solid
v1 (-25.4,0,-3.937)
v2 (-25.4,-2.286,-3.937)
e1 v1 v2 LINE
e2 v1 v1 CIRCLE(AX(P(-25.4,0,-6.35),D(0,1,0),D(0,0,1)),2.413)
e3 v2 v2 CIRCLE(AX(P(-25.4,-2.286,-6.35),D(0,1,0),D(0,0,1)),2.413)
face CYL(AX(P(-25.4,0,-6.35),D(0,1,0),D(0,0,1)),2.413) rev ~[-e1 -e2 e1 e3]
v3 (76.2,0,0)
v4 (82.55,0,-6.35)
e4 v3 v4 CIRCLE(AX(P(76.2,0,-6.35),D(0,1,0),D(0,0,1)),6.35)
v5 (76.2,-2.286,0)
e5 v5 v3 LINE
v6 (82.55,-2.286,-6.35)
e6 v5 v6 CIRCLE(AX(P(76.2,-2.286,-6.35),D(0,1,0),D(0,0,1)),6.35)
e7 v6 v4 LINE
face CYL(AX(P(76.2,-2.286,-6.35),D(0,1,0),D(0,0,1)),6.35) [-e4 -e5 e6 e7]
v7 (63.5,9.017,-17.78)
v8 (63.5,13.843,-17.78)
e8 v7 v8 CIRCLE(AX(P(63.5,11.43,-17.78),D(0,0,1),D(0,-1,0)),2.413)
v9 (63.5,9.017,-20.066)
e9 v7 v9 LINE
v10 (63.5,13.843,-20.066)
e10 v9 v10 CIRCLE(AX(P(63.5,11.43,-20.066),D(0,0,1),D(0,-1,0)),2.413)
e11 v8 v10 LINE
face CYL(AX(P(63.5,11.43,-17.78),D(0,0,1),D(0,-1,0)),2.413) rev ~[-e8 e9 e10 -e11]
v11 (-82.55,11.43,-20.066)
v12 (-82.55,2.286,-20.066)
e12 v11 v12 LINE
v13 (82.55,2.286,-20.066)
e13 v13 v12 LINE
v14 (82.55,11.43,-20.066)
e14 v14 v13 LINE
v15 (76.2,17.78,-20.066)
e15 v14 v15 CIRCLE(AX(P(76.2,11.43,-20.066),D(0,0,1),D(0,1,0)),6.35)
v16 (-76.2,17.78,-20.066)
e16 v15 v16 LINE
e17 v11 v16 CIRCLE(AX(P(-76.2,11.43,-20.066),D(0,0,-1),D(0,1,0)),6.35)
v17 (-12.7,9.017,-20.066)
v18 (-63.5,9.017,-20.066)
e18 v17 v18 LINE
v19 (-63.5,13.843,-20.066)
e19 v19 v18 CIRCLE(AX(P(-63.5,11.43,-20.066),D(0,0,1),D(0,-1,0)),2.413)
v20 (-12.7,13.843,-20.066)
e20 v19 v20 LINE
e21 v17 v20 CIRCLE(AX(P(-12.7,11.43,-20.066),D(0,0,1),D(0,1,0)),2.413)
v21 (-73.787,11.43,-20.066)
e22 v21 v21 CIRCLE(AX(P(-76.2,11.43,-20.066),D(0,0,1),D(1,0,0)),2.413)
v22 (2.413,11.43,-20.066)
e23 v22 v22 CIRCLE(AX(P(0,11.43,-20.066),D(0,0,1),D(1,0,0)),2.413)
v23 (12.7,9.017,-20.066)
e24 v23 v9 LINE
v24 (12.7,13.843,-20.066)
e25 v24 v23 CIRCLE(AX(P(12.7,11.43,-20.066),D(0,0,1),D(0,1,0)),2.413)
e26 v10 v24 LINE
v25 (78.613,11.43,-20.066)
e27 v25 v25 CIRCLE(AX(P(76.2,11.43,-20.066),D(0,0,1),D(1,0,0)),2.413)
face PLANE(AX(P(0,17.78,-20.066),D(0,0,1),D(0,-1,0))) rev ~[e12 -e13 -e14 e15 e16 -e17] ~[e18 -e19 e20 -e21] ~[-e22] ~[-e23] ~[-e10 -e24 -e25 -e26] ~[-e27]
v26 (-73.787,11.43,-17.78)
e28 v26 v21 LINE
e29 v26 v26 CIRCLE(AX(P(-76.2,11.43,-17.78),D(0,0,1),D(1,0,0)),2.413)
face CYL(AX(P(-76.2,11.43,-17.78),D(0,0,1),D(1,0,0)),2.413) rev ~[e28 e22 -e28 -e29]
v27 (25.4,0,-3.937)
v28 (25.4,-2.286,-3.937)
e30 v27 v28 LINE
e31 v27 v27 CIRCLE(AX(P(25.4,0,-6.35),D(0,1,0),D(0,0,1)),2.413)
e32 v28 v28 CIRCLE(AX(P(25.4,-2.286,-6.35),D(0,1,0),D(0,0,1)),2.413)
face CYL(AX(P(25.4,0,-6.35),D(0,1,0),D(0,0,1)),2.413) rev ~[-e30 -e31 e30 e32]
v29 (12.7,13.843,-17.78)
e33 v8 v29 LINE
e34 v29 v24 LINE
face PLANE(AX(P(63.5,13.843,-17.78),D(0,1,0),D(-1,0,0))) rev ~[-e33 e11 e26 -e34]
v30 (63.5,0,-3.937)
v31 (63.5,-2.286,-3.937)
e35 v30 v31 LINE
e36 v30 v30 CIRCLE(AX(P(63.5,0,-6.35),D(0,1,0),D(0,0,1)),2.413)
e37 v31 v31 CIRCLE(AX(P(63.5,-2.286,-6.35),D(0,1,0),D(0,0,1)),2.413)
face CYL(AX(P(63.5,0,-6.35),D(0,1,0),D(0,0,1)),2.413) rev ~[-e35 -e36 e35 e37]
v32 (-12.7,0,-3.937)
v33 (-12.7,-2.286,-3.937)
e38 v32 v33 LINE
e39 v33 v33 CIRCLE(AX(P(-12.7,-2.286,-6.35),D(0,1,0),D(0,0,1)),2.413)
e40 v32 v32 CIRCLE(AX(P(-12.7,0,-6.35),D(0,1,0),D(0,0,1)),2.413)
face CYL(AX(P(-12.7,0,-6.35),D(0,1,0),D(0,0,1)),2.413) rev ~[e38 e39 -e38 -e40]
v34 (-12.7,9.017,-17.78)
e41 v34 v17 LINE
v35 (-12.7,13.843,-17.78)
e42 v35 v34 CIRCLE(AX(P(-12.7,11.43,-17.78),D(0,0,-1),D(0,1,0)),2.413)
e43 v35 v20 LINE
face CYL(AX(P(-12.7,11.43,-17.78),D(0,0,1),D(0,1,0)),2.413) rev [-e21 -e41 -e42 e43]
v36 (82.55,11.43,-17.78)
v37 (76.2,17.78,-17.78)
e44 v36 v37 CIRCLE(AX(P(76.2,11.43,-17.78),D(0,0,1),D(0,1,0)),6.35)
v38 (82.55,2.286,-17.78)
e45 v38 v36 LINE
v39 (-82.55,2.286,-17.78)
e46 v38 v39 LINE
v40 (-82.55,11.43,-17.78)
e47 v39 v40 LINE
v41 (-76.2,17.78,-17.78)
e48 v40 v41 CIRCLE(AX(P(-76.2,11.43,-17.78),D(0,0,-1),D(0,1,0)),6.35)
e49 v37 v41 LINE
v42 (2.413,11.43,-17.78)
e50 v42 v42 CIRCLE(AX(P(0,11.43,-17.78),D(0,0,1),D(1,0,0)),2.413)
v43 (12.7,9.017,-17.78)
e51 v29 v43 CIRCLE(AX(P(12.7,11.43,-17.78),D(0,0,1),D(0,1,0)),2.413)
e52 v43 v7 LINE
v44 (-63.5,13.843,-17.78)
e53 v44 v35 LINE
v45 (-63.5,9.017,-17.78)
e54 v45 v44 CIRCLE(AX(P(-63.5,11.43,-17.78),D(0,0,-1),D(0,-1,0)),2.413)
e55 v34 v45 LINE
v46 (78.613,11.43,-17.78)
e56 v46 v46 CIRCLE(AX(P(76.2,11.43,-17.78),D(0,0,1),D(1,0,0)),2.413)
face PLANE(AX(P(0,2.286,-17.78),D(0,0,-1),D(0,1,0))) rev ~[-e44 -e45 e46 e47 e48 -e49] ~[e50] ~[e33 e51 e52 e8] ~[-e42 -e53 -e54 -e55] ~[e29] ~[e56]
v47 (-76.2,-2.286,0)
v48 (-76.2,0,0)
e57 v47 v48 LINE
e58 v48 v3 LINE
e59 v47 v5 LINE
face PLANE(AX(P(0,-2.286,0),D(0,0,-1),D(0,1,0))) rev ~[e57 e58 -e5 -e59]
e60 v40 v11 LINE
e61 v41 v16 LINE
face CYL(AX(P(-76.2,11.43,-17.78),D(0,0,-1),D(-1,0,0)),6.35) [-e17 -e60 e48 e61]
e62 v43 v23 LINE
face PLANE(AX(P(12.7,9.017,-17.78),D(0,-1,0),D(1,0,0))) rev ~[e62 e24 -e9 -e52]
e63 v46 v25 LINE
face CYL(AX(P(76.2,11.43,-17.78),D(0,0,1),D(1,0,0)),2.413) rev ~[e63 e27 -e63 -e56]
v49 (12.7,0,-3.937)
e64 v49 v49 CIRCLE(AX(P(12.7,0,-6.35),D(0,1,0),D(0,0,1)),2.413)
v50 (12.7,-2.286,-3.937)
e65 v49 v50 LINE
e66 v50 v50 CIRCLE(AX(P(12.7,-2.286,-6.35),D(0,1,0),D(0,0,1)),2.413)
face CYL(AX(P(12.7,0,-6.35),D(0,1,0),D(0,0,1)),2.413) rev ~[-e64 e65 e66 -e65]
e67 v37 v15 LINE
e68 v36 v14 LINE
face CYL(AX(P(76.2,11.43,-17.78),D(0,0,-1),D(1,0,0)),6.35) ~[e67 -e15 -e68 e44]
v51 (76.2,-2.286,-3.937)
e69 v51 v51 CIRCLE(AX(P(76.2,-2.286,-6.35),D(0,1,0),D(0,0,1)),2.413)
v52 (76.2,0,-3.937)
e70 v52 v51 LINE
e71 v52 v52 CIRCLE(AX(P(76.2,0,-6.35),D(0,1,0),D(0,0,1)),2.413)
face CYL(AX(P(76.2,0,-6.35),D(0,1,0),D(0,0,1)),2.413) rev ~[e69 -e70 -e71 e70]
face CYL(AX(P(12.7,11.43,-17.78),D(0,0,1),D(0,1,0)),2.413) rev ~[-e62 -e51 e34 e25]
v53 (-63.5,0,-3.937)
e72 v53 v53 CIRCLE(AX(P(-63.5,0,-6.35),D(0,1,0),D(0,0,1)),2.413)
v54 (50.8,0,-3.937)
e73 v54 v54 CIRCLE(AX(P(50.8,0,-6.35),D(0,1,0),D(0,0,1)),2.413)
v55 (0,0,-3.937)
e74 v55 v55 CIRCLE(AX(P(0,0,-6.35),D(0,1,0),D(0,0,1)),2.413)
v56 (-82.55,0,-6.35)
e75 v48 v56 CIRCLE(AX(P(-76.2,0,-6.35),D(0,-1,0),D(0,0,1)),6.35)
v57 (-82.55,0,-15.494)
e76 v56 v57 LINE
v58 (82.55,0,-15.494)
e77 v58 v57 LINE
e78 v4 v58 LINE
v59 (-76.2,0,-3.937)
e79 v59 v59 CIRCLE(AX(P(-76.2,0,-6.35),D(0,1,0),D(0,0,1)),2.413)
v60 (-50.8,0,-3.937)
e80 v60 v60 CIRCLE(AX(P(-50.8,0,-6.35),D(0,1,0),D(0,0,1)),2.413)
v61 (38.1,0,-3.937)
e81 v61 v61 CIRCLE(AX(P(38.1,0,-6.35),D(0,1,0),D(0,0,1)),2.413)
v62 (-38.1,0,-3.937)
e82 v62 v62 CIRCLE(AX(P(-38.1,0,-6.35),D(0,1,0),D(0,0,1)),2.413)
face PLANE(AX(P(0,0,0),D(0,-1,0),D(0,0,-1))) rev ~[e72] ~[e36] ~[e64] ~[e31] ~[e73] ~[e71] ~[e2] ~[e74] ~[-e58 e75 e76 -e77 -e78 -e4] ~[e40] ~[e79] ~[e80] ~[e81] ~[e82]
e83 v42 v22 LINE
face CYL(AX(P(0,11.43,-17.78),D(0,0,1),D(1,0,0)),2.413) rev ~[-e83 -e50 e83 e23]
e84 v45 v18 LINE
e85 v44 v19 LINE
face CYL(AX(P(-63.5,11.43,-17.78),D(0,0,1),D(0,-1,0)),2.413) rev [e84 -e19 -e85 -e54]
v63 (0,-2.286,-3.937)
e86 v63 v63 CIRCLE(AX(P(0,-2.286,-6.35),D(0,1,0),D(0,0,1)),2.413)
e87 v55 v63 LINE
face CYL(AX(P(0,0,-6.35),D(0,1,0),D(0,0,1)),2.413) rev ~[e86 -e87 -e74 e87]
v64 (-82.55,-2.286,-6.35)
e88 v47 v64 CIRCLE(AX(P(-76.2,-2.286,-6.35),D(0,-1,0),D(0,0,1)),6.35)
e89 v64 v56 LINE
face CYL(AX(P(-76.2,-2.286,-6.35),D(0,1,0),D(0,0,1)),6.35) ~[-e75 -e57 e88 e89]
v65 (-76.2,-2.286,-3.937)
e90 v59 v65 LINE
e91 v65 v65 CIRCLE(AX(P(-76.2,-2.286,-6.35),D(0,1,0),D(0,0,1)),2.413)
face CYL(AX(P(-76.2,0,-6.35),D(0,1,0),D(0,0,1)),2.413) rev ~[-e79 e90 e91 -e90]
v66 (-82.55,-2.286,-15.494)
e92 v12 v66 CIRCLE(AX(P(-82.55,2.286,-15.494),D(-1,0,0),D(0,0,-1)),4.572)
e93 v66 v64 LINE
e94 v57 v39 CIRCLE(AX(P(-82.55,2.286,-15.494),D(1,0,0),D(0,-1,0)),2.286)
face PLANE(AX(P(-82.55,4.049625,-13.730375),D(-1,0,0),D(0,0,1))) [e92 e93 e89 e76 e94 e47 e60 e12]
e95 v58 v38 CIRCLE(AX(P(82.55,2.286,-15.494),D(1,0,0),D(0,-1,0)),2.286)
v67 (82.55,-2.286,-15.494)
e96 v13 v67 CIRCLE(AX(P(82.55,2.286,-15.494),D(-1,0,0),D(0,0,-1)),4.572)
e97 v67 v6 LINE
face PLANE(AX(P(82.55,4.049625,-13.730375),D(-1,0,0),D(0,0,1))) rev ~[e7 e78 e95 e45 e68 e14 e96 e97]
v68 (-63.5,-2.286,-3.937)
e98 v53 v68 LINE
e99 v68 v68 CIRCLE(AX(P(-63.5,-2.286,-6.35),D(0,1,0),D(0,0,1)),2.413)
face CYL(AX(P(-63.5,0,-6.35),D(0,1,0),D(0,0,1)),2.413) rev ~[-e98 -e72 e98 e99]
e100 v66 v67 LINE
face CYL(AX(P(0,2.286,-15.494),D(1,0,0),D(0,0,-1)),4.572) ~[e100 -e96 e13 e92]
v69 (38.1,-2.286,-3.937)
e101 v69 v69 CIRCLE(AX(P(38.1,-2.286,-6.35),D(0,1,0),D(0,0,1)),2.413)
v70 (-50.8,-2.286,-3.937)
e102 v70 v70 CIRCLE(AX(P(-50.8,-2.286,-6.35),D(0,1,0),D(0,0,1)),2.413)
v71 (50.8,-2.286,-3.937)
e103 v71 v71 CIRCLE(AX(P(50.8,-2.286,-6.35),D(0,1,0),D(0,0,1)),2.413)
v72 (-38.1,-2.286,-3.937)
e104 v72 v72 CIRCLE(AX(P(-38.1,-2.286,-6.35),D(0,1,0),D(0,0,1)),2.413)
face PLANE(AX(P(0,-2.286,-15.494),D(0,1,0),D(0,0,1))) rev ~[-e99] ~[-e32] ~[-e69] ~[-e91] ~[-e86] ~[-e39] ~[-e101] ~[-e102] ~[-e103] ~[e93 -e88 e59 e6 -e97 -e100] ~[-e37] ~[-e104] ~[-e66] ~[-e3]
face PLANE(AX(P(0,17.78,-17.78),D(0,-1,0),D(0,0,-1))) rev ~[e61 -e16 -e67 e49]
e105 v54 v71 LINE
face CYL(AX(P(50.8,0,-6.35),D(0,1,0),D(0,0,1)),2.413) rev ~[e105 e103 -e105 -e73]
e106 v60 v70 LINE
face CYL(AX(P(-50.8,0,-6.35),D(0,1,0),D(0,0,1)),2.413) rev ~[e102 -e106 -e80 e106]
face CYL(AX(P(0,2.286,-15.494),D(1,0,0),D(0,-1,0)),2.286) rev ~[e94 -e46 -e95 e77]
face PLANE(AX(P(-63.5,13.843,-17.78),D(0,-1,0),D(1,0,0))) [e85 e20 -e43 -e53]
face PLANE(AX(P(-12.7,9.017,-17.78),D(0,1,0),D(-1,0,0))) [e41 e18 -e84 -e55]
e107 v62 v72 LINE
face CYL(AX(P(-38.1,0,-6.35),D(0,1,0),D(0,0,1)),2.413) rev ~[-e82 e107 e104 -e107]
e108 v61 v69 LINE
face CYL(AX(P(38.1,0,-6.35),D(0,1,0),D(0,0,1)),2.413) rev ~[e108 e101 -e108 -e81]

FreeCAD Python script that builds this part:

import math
import FreeCAD as App
import Part
import Sketcher
from FreeCAD import Vector
Q = App.Units.Quantity


def edges_at(feature, points):
    """Names of the edges that pass closest to the given points."""
    edges = feature.Shape.Edges
    near = lambda p: min(range(len(edges)), key=lambda i: edges[i].distToShape(Part.Vertex(*p))[0])
    return sorted({f"Edge{near(p) + 1}" for p in points})

doc = App.newDocument("Part")
body = doc.addObject("PartDesign::Body", "Body")

# Sketch on YZ plane
sketch1 = body.newObject("Sketcher::SketchObject", "Sketch")
sketch1.AttachmentSupport = (doc.getObject("YZ_Plane"), [""])
sketch1.MapMode = "FlatFace"
sketch1.addGeometry(Part.LineSegment(Vector(0, -15.5, 0), Vector(0, 0, 0)), False)
sketch1.addGeometry(Part.LineSegment(Vector(0, 0, 0), Vector(-2.3, 0, 0)), False)
sketch1.addGeometry(Part.LineSegment(Vector(-2.3, 0, 0), Vector(-2.3, -15.5, 0)), False)
sketch1.addGeometry(Part.ArcOfCircle(Part.Circle(Vector(2.3, -15.5, 0), Vector(0, 0, 1), 4.6), math.radians(180), math.radians(270)), False)
sketch1.addGeometry(Part.LineSegment(Vector(2.3, -20.1, 0), Vector(17.8, -20.1, 0)), False)
sketch1.addGeometry(Part.LineSegment(Vector(17.8, -20.1, 0), Vector(17.8, -17.8, 0)), False)
sketch1.addGeometry(Part.LineSegment(Vector(17.8, -17.8, 0), Vector(2.3, -17.8, 0)), False)
sketch1.addGeometry(Part.ArcOfCircle(Part.Circle(Vector(2.3, -15.5, 0), Vector(0, 0, 1), 2.3), math.radians(180), math.radians(270)), False)
sketch1.addConstraint(Sketcher.Constraint("Coincident", 0, 2, 1, 1))
sketch1.addConstraint(Sketcher.Constraint("Coincident", 1, 2, 2, 1))
sketch1.addConstraint(Sketcher.Constraint("Tangent", 2, 2, 3, 1))
sketch1.addConstraint(Sketcher.Constraint("Tangent", 3, 2, 4, 1))
sketch1.addConstraint(Sketcher.Constraint("Coincident", 4, 2, 5, 1))
sketch1.addConstraint(Sketcher.Constraint("Coincident", 5, 2, 6, 1))
sketch1.addConstraint(Sketcher.Constraint("Tangent", 6, 2, 7, 2))
sketch1.addConstraint(Sketcher.Constraint("Tangent", 7, 1, 0, 1))
sketch1.addConstraint(Sketcher.Constraint("Vertical", 0))
sketch1.addConstraint(Sketcher.Constraint("Horizontal", 1))
sketch1.addConstraint(Sketcher.Constraint("Vertical", 2))
sketch1.addConstraint(Sketcher.Constraint("Horizontal", 4))
sketch1.addConstraint(Sketcher.Constraint("Vertical", 5))
sketch1.addConstraint(Sketcher.Constraint("Horizontal", 6))
sketch1.addConstraint(Sketcher.Constraint("Coincident", 0, 2, -1, 1))
sketch1.addConstraint(Sketcher.Constraint("Coincident", 7, 3, 3, 3))
sketch1.addConstraint(Sketcher.Constraint("Equal", 6, 0))
sketch1.addConstraint(Sketcher.Constraint("Radius", 3, Q("0.18 in")))
sketch1.addConstraint(Sketcher.Constraint("Radius", 7, Q("0.09 in")))
sketch1.addConstraint(Sketcher.Constraint("DistanceX", 4, 1, 4, 2, Q("0.61 in")))
pad1 = body.newObject("PartDesign::Pad", "Pad")
pad1.Profile = sketch1
pad1.Length = Q("6.5 in")
pad1.Midplane = True

# Sketch on XZ plane
sketch2 = body.newObject("Sketcher::SketchObject", "Sketch001")
sketch2.AttachmentSupport = (doc.getObject("XZ_Plane"), [""])
sketch2.MapMode = "FlatFace"
sketch2.addGeometry(Part.Circle(Vector(-76.2, -6.3, 0), Vector(0, 0, 1), 2.4), False)
sketch2.addConstraint(Sketcher.Constraint("Diameter", 0, Q("0.19 in")))
sketch2.addConstraint(Sketcher.Constraint("DistanceX", 0, 3, -1, 1, Q("3 in")))
sketch2.addConstraint(Sketcher.Constraint("DistanceY", 0, 3, -1, 1, Q("0.25 in")))
pocket1 = body.newObject("PartDesign::Pocket", "Pocket")
pocket1.Profile = sketch2
pocket1.Type = "ThroughAll"
pocket1.Reversed = True
doc.recompute()

linearpattern = body.newObject("PartDesign::LinearPattern", "LinearPattern")
linearpattern.Originals = [pocket1]
linearpattern.Direction = (doc.getObject("X_Axis"), [""])
linearpattern.Mode = "offset"
linearpattern.Offset = Q("0.5 in")
linearpattern.Occurrences = 13
body.Tip = linearpattern
doc.recompute()

fillet = body.newObject("PartDesign::Fillet", "Fillet")
fillet.Base = (linearpattern, edges_at(linearpattern, [
    (82.55, -1.143, 0),
    (-82.55, -1.143, 0),
    (82.55, 17.78, -18.923),
    (-82.55, 17.78, -18.923),
]))
fillet.Radius = Q("0.25 in")

# Sketch on XY plane
sketch3 = body.newObject("Sketcher::SketchObject", "Sketch002")
sketch3.AttachmentSupport = (doc.getObject("XY_Plane"), [""])
sketch3.MapMode = "FlatFace"
sketch3.AttachmentOffset = App.Placement(Vector(0, 0, -0.7 * 25.4), App.Rotation())
sketch3.addGeometry(Part.Circle(Vector(-76.2, 11.4, 0), Vector(0, 0, 1), 2.4), False)
sketch3.addConstraint(Sketcher.Constraint("Diameter", 0, Q("0.19 in")))
sketch3.addConstraint(Sketcher.Constraint("DistanceX", 0, 3, -1, 1, Q("3 in")))
sketch3.addConstraint(Sketcher.Constraint("DistanceY", -1, 1, 0, 3, Q("0.45 in")))
pocket2 = body.newObject("PartDesign::Pocket", "Pocket001")
pocket2.Profile = sketch3
pocket2.Type = "ThroughAll"
doc.recompute()

linearpattern2 = body.newObject("PartDesign::LinearPattern", "LinearPattern001")
linearpattern2.Originals = [pocket2]
linearpattern2.Direction = (doc.getObject("X_Axis"), [""])
linearpattern2.Mode = "offset"
linearpattern2.Offset = Q("3 in")
linearpattern2.Occurrences = 13
body.Tip = linearpattern2

# Sketch on XY plane
sketch4 = body.newObject("Sketcher::SketchObject", "Sketch003")
sketch4.AttachmentSupport = (doc.getObject("XY_Plane"), [""])
sketch4.MapMode = "FlatFace"
sketch4.AttachmentOffset = App.Placement(Vector(0, 0, -0.7 * 25.4), App.Rotation())
sketch4.addGeometry(Part.LineSegment(Vector(-12.7, 13.8, 0), Vector(-63.5, 13.8, 0)), False)
sketch4.addGeometry(Part.ArcOfCircle(Part.Circle(Vector(-63.5, 11.4, 0), Vector(0, 0, 1), 2.4), math.radians(90), math.radians(270)), False)
sketch4.addGeometry(Part.LineSegment(Vector(-63.5, 9, 0), Vector(-12.7, 9, 0)), False)
sketch4.addGeometry(Part.ArcOfCircle(Part.Circle(Vector(-12.7, 11.4, 0), Vector(0, 0, 1), 2.4), math.radians(-90), math.radians(90)), False)
sketch4.addGeometry(Part.LineSegment(Vector(63.5, 13.8, 0), Vector(12.7, 13.8, 0)), False)
sketch4.addGeometry(Part.ArcOfCircle(Part.Circle(Vector(12.7, 11.4, 0), Vector(0, 0, 1), 2.4), math.radians(90), math.radians(270)), False)
sketch4.addGeometry(Part.LineSegment(Vector(12.7, 9, 0), Vector(63.5, 9, 0)), False)
sketch4.addGeometry(Part.ArcOfCircle(Part.Circle(Vector(63.5, 11.4, 0), Vector(0, 0, 1), 2.4), math.radians(-90), math.radians(90)), False)
sketch4.addConstraint(Sketcher.Constraint("Tangent", 0, 2, 1, 1))
sketch4.addConstraint(Sketcher.Constraint("Tangent", 1, 2, 2, 1))
sketch4.addConstraint(Sketcher.Constraint("Tangent", 2, 2, 3, 1))
sketch4.addConstraint(Sketcher.Constraint("Tangent", 3, 2, 0, 1))
sketch4.addConstraint(Sketcher.Constraint("Tangent", 4, 2, 5, 1))
sketch4.addConstraint(Sketcher.Constraint("Tangent", 5, 2, 6, 1))
sketch4.addConstraint(Sketcher.Constraint("Tangent", 6, 2, 7, 1))
sketch4.addConstraint(Sketcher.Constraint("Tangent", 7, 2, 4, 1))
sketch4.addConstraint(Sketcher.Constraint("Horizontal", 0))
sketch4.addConstraint(Sketcher.Constraint("Horizontal", 2))
sketch4.addConstraint(Sketcher.Constraint("Horizontal", 4))
sketch4.addConstraint(Sketcher.Constraint("Horizontal", 6))
sketch4.addConstraint(Sketcher.Constraint("Equal", 3, 5))
sketch4.addConstraint(Sketcher.Constraint("Symmetric", 3, 3, 5, 3, -2))
sketch4.addConstraint(Sketcher.Constraint("Equal", 2, 4))
sketch4.addConstraint(Sketcher.Constraint("DistanceX", 0, 2, 0, 1, Q("2 in")))
sketch4.addConstraint(Sketcher.Constraint("Radius", 1, Q("0.095 in")))
sketch4.addConstraint(Sketcher.Constraint("DistanceX", 3, 3, 5, 3, Q("1 in")))
sketch4.addConstraint(Sketcher.Constraint("DistanceY", -1, 1, 1, 3, Q("0.45 in")))
pocket3 = body.newObject("PartDesign::Pocket", "Pocket002")
pocket3.Profile = sketch4
pocket3.Type = "ThroughAll"

doc.recompute()
